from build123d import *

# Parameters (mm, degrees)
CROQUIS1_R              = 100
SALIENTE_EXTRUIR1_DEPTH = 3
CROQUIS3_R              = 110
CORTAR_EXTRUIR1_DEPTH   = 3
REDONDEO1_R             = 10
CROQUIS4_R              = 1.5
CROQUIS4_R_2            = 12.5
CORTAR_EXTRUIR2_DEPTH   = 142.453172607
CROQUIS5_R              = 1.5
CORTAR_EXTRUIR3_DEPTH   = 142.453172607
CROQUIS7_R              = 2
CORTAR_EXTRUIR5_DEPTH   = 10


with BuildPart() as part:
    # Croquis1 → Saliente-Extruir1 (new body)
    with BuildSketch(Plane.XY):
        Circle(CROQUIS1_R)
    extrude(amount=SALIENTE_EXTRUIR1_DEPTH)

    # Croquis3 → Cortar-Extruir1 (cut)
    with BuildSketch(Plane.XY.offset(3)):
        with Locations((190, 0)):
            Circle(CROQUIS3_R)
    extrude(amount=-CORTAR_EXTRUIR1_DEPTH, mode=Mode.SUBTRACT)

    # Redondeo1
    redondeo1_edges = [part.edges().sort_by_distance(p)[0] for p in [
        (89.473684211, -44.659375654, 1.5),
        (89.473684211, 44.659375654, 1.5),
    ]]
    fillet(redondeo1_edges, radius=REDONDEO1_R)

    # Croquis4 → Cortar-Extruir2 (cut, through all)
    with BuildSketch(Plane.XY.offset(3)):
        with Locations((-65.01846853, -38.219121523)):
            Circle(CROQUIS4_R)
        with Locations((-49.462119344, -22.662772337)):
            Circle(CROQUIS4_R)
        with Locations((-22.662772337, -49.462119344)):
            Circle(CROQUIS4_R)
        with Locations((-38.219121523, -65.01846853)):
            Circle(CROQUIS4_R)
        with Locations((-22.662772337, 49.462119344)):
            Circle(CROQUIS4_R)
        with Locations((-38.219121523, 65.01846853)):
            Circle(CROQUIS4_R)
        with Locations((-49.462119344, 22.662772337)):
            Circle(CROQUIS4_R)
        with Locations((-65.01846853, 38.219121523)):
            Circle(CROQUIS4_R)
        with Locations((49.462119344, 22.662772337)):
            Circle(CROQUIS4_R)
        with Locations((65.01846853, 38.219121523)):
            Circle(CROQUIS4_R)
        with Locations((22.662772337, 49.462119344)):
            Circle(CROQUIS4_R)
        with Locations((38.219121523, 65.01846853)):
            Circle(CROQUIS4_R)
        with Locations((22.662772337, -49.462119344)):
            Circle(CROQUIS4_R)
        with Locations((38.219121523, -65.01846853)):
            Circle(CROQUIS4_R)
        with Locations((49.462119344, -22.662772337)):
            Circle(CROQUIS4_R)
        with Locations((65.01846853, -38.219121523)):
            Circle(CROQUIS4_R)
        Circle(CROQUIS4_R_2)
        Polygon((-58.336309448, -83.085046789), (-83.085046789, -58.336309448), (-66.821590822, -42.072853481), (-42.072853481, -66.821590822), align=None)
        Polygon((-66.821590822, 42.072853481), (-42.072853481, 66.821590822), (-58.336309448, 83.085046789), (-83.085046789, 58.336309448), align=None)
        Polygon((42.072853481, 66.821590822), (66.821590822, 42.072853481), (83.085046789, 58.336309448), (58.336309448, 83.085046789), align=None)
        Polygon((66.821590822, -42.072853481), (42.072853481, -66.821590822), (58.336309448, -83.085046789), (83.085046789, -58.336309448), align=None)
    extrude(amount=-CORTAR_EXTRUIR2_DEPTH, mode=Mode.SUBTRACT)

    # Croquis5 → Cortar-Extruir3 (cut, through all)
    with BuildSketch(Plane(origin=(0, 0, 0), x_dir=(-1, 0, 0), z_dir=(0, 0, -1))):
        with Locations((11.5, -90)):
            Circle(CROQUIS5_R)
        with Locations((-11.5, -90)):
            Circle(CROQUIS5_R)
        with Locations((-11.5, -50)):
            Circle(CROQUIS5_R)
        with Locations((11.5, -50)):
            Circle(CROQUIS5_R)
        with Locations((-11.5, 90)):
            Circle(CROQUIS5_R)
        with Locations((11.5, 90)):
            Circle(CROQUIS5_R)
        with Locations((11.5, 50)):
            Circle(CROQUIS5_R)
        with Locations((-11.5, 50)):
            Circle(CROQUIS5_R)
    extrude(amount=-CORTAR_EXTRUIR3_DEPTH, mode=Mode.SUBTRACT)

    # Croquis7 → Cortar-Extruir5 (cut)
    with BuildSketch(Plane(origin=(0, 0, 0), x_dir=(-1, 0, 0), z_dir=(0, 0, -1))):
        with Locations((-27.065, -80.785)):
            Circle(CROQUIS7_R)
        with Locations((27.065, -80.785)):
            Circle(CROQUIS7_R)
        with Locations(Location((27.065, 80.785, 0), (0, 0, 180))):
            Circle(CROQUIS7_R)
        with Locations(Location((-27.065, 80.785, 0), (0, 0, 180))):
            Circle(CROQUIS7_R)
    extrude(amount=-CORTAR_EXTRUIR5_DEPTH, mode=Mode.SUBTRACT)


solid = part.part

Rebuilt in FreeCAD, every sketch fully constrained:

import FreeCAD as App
import Part
import Sketcher


def edges_at(feature, points):
    """Names of the edges that pass closest to the given points."""
    edges = feature.Shape.Edges
    near = lambda p: min(range(len(edges)), key=lambda i: edges[i].distToShape(Part.Vertex(*p))[0])
    return sorted({f"Edge{near(p) + 1}" for p in points})


def add_polygon(sketch, points):
    """Adds a closed chain of lines whose ends are joined by coincident constraints."""
    first, n = sketch.GeometryCount, len(points)
    for a, b in zip(points, points[1:] + points[:1]):
        sketch.addGeometry(Part.LineSegment(App.Vector(*a, 0), App.Vector(*b, 0)), False)
    for i in range(n):
        sketch.addConstraint(Sketcher.Constraint("Coincident", first + i, 2, first + (i + 1) % n, 1))

doc = App.newDocument("Part")
body = doc.addObject("PartDesign::Body", "Body")

sketch1 = body.newObject("Sketcher::SketchObject", "Sketch")
sketch1.AttachmentSupport = (doc.getObject("XY_Plane"), [""])
sketch1.MapMode = "FlatFace"
sketch1.addGeometry(Part.Circle(App.Vector(0, 0, 0), App.Vector(0, 0, 1), 100), False)
sketch1.addConstraint([
    Sketcher.Constraint("Coincident", 0, 3, -1, 1),
    Sketcher.Constraint("Diameter", 0, 200.0),
])
pad1 = body.newObject("PartDesign::Pad", "Pad")
pad1.Profile = sketch1
pad1.Length = 3

sketch2 = body.newObject("Sketcher::SketchObject", "Sketch001")
sketch2.AttachmentSupport = (doc.getObject("XY_Plane"), [""])
sketch2.MapMode = "FlatFace"
sketch2.AttachmentOffset = App.Placement(App.Vector(0, 0, 3), App.Rotation())
sketch2.addGeometry(Part.Circle(App.Vector(190, 0, 0), App.Vector(0, 0, 1), 110), False)
sketch2.addConstraint([
    Sketcher.Constraint("PointOnObject", 0, 3, -1),
    Sketcher.Constraint("Diameter", 0, 220.0),
    Sketcher.Constraint("DistanceX", -1, 1, 0, 3, 190.0),
])
pocket1 = body.newObject("PartDesign::Pocket", "Pocket")
pocket1.Profile = sketch2
pocket1.Length = 3
doc.recompute()

fillet = body.newObject("PartDesign::Fillet", "Fillet")
fillet.Base = (pocket1, edges_at(pocket1, [(89.474, -44.659, 1.5), (89.474, 44.659, 1.5)]))
fillet.Radius = 10

sketch3 = body.newObject("Sketcher::SketchObject", "Sketch002")
sketch3.AttachmentSupport = (doc.getObject("XY_Plane"), [""])
sketch3.MapMode = "FlatFace"
sketch3.AttachmentOffset = App.Placement(App.Vector(0, 0, 3), App.Rotation())
sketch3.addGeometry(Part.Circle(App.Vector(-65.018469, -38.219122, 0), App.Vector(0, 0, 1), 1.5), False)
sketch3.addGeometry(Part.Circle(App.Vector(-49.462119, -22.662772, 0), App.Vector(0, 0, 1), 1.5), False)
sketch3.addGeometry(Part.Circle(App.Vector(-22.662772, -49.462119, 0), App.Vector(0, 0, 1), 1.5), False)
sketch3.addGeometry(Part.Circle(App.Vector(-38.219122, -65.018469, 0), App.Vector(0, 0, 1), 1.5), False)
sketch3.addGeometry(Part.Circle(App.Vector(-22.662772, 49.462119, 0), App.Vector(0, 0, 1), 1.5), False)
sketch3.addGeometry(Part.Circle(App.Vector(-38.219122, 65.018469, 0), App.Vector(0, 0, 1), 1.5), False)
sketch3.addGeometry(Part.Circle(App.Vector(-49.462119, 22.662772, 0), App.Vector(0, 0, 1), 1.5), False)
sketch3.addGeometry(Part.Circle(App.Vector(-65.018469, 38.219122, 0), App.Vector(0, 0, 1), 1.5), False)
sketch3.addGeometry(Part.Circle(App.Vector(49.462119, 22.662772, 0), App.Vector(0, 0, 1), 1.5), False)
sketch3.addGeometry(Part.Circle(App.Vector(65.018469, 38.219122, 0), App.Vector(0, 0, 1), 1.5), False)
sketch3.addGeometry(Part.Circle(App.Vector(22.662772, 49.462119, 0), App.Vector(0, 0, 1), 1.5), False)
sketch3.addGeometry(Part.Circle(App.Vector(38.219122, 65.018469, 0), App.Vector(0, 0, 1), 1.5), False)
sketch3.addGeometry(Part.Circle(App.Vector(22.662772, -49.462119, 0), App.Vector(0, 0, 1), 1.5), False)
sketch3.addGeometry(Part.Circle(App.Vector(38.219122, -65.018469, 0), App.Vector(0, 0, 1), 1.5), False)
sketch3.addGeometry(Part.Circle(App.Vector(49.462119, -22.662772, 0), App.Vector(0, 0, 1), 1.5), False)
sketch3.addGeometry(Part.Circle(App.Vector(65.018469, -38.219122, 0), App.Vector(0, 0, 1), 1.5), False)
sketch3.addGeometry(Part.Circle(App.Vector(0, 0, 0), App.Vector(0, 0, 1), 12.5), False)
add_polygon(sketch3, [(-83.085047, -58.336309), (-58.336309, -83.085047), (-42.072853, -66.821591), (-66.821591, -42.072853)])
add_polygon(sketch3, [(-66.821591, 42.072853), (-42.072853, 66.821591), (-58.336309, 83.085047), (-83.085047, 58.336309)])
add_polygon(sketch3, [(42.072853, 66.821591), (66.821591, 42.072853), (83.085047, 58.336309), (58.336309, 83.085047)])
add_polygon(sketch3, [(66.821591, -42.072853), (42.072853, -66.821591), (58.336309, -83.085047), (83.085047, -58.336309)])
sketch3.addConstraint([
    Sketcher.Constraint("Coincident", 16, 3, -1, 1),
    Sketcher.Constraint("Equal", 0, 1),
    Sketcher.Constraint("Equal", 1, 2),
    Sketcher.Constraint("Equal", 2, 3),
    Sketcher.Constraint("Equal", 3, 4),
    Sketcher.Constraint("Equal", 4, 5),
    Sketcher.Constraint("Equal", 5, 6),
    Sketcher.Constraint("Equal", 6, 7),
    Sketcher.Constraint("Equal", 7, 8),
    Sketcher.Constraint("Equal", 8, 9),
    Sketcher.Constraint("Equal", 9, 10),
    Sketcher.Constraint("Equal", 10, 11),
    Sketcher.Constraint("Equal", 11, 12),
    Sketcher.Constraint("Equal", 12, 13),
    Sketcher.Constraint("Equal", 13, 14),
    Sketcher.Constraint("Equal", 14, 15),
    Sketcher.Constraint("Symmetric", 1, 3, 8, 3, -1, 1),
    Sketcher.Constraint("Symmetric", 0, 3, 9, 3, -1, 1),
    Sketcher.Constraint("Symmetric", 2, 3, 10, 3, -1, 1),
    Sketcher.Constraint("Symmetric", 3, 3, 11, 3, -1, 1),
    Sketcher.Constraint("Symmetric", 4, 3, 12, 3, -1, 1),
    Sketcher.Constraint("Symmetric", 5, 3, 13, 3, -1, 1),
    Sketcher.Constraint("Symmetric", 6, 3, 14, 3, -1, 1),
    Sketcher.Constraint("Symmetric", 7, 3, 15, 3, -1, 1),
    Sketcher.Constraint("Symmetric", 19, 2, 25, 2, -1, 1),
    Sketcher.Constraint("Symmetric", 20, 2, 26, 2, -1, 1),
    Sketcher.Constraint("Symmetric", 17, 2, 27, 2, -1, 1),
    Sketcher.Constraint("Symmetric", 18, 2, 28, 2, -1, 1),
    Sketcher.Constraint("Symmetric", 21, 2, 29, 2, -1, 1),
    Sketcher.Constraint("Symmetric", 22, 2, 30, 2, -1, 1),
    Sketcher.Constraint("Symmetric", 23, 2, 31, 2, -1, 1),
    Sketcher.Constraint("Symmetric", 24, 2, 32, 2, -1, 1),
    Sketcher.Constraint("Symmetric", 6, 3, 8, 3, -2),
    Sketcher.Constraint("Symmetric", 7, 3, 9, 3, -2),
    Sketcher.Constraint("Symmetric", 4, 3, 10, 3, -2),
    Sketcher.Constraint("Symmetric", 5, 3, 11, 3, -2),
    Sketcher.Constraint("Symmetric", 24, 2, 25, 2, -2),
    Sketcher.Constraint("Symmetric", 23, 2, 26, 2, -2),
    Sketcher.Constraint("Symmetric", 22, 2, 27, 2, -2),
    Sketcher.Constraint("Symmetric", 21, 2, 28, 2, -2),
    Sketcher.Constraint("Perpendicular", 17, 18),
    Sketcher.Constraint("Perpendicular", 18, 19),
    Sketcher.Constraint("Perpendicular", 19, 20),
    Sketcher.Constraint("Parallel", 20, 21),
    Sketcher.Constraint("Diameter", 0, 3.0),
    Sketcher.Constraint("Diameter", 16, 25.0),
    Sketcher.Constraint("Distance", 17, 35.0),
    Sketcher.Constraint("Distance", 18, 23.0),
    Sketcher.Constraint("DistanceX", 0, 3, -1, 1, 65.018469),
    Sketcher.Constraint("DistanceY", 0, 3, -1, 1, 38.219122),
    Sketcher.Constraint("DistanceX", 1, 3, -1, 1, 49.462119),
    Sketcher.Constraint("DistanceY", 2, 3, -1, 1, 49.462119),
    Sketcher.Constraint("DistanceX", 3, 3, -1, 1, 38.219122),
    Sketcher.Constraint("DistanceY", 3, 3, -1, 1, 65.018469),
    Sketcher.Constraint("DistanceX", 17, 2, -1, 1, 58.336309),
    Sketcher.Constraint("DistanceY", 18, 2, -1, 1, 66.821591),
    Sketcher.Constraint("DistanceY", 0, 3, 1, 3, 15.556349),
    Sketcher.Constraint("DistanceX", 3, 3, 2, 3, 15.556349),
])
pocket2 = body.newObject("PartDesign::Pocket", "Pocket001")
pocket2.Profile = sketch3
pocket2.Type = "ThroughAll"

sketch4 = body.newObject("Sketcher::SketchObject", "Sketch003")
sketch4.AttachmentSupport = (doc.getObject("XY_Plane"), [""])
sketch4.MapMode = "FlatFace"
sketch4.addGeometry([
    Part.Circle(App.Vector(-11.5, -90, 0), App.Vector(0, 0, 1), 1.5),
    Part.Circle(App.Vector(11.5, -90, 0), App.Vector(0, 0, 1), 1.5),
    Part.Circle(App.Vector(11.5, -50, 0), App.Vector(0, 0, 1), 1.5),
    Part.Circle(App.Vector(-11.5, -50, 0), App.Vector(0, 0, 1), 1.5),
    Part.Circle(App.Vector(11.5, 90, 0), App.Vector(0, 0, 1), 1.5),
    Part.Circle(App.Vector(-11.5, 90, 0), App.Vector(0, 0, 1), 1.5),
    Part.Circle(App.Vector(-11.5, 50, 0), App.Vector(0, 0, 1), 1.5),
    Part.Circle(App.Vector(11.5, 50, 0), App.Vector(0, 0, 1), 1.5),
], False)
sketch4.addConstraint([
    Sketcher.Constraint("Equal", 0, 1),
    Sketcher.Constraint("Equal", 1, 2),
    Sketcher.Constraint("Equal", 2, 3),
    Sketcher.Constraint("Equal", 3, 4),
    Sketcher.Constraint("Equal", 4, 5),
    Sketcher.Constraint("Equal", 5, 6),
    Sketcher.Constraint("Equal", 6, 7),
    Sketcher.Constraint("Symmetric", 0, 3, 4, 3, -1, 1),
    Sketcher.Constraint("Symmetric", 1, 3, 5, 3, -1, 1),
    Sketcher.Constraint("Symmetric", 2, 3, 6, 3, -1, 1),
    Sketcher.Constraint("Symmetric", 3, 3, 7, 3, -1, 1),
    Sketcher.Constraint("Symmetric", 0, 3, 1, 3, -2),
    Sketcher.Constraint("Symmetric", 2, 3, 3, 3, -2),
    Sketcher.Constraint("Vertical", 1, 3, 2, 3),
    Sketcher.Constraint("Diameter", 0, 3.0),
    Sketcher.Constraint("DistanceY", 0, 3, -1, 1, 90.0),
    Sketcher.Constraint("DistanceY", 2, 3, -1, 1, 50.0),
    Sketcher.Constraint("DistanceX", 0, 3, 1, 3, 23.0),
])
pocket3 = body.newObject("PartDesign::Pocket", "Pocket002")
pocket3.Profile = sketch4
pocket3.Type = "ThroughAll"
pocket3.Reversed = True

sketch5 = body.newObject("Sketcher::SketchObject", "Sketch004")
sketch5.AttachmentSupport = (doc.getObject("XY_Plane"), [""])
sketch5.MapMode = "FlatFace"
sketch5.addGeometry([
    Part.Circle(App.Vector(27.065, -80.785, 0), App.Vector(0, 0, 1), 2),
    Part.Circle(App.Vector(-27.065, -80.785, 0), App.Vector(0, 0, 1), 2),
    Part.Circle(App.Vector(-27.065, 80.785, 0), App.Vector(0, 0, 1), 2),
    Part.Circle(App.Vector(27.065, 80.785, 0), App.Vector(0, 0, 1), 2),
], False)
sketch5.addConstraint([
    Sketcher.Constraint("Equal", 0, 1),
    Sketcher.Constraint("Equal", 1, 2),
    Sketcher.Constraint("Equal", 2, 3),
    Sketcher.Constraint("Symmetric", 0, 3, 2, 3, -1, 1),
    Sketcher.Constraint("Symmetric", 1, 3, 3, 3, -1, 1),
    Sketcher.Constraint("Symmetric", 0, 3, 1, 3, -2),
    Sketcher.Constraint("Diameter", 0, 4.0),
    Sketcher.Constraint("DistanceX", 1, 3, 0, 3, 54.13),
    Sketcher.Constraint("DistanceY", 1, 3, 2, 3, 161.57),
])
pocket4 = body.newObject("PartDesign::Pocket", "Pocket003")
pocket4.Profile = sketch5
pocket4.Length = 10
pocket4.Reversed = True

doc.recompute()
